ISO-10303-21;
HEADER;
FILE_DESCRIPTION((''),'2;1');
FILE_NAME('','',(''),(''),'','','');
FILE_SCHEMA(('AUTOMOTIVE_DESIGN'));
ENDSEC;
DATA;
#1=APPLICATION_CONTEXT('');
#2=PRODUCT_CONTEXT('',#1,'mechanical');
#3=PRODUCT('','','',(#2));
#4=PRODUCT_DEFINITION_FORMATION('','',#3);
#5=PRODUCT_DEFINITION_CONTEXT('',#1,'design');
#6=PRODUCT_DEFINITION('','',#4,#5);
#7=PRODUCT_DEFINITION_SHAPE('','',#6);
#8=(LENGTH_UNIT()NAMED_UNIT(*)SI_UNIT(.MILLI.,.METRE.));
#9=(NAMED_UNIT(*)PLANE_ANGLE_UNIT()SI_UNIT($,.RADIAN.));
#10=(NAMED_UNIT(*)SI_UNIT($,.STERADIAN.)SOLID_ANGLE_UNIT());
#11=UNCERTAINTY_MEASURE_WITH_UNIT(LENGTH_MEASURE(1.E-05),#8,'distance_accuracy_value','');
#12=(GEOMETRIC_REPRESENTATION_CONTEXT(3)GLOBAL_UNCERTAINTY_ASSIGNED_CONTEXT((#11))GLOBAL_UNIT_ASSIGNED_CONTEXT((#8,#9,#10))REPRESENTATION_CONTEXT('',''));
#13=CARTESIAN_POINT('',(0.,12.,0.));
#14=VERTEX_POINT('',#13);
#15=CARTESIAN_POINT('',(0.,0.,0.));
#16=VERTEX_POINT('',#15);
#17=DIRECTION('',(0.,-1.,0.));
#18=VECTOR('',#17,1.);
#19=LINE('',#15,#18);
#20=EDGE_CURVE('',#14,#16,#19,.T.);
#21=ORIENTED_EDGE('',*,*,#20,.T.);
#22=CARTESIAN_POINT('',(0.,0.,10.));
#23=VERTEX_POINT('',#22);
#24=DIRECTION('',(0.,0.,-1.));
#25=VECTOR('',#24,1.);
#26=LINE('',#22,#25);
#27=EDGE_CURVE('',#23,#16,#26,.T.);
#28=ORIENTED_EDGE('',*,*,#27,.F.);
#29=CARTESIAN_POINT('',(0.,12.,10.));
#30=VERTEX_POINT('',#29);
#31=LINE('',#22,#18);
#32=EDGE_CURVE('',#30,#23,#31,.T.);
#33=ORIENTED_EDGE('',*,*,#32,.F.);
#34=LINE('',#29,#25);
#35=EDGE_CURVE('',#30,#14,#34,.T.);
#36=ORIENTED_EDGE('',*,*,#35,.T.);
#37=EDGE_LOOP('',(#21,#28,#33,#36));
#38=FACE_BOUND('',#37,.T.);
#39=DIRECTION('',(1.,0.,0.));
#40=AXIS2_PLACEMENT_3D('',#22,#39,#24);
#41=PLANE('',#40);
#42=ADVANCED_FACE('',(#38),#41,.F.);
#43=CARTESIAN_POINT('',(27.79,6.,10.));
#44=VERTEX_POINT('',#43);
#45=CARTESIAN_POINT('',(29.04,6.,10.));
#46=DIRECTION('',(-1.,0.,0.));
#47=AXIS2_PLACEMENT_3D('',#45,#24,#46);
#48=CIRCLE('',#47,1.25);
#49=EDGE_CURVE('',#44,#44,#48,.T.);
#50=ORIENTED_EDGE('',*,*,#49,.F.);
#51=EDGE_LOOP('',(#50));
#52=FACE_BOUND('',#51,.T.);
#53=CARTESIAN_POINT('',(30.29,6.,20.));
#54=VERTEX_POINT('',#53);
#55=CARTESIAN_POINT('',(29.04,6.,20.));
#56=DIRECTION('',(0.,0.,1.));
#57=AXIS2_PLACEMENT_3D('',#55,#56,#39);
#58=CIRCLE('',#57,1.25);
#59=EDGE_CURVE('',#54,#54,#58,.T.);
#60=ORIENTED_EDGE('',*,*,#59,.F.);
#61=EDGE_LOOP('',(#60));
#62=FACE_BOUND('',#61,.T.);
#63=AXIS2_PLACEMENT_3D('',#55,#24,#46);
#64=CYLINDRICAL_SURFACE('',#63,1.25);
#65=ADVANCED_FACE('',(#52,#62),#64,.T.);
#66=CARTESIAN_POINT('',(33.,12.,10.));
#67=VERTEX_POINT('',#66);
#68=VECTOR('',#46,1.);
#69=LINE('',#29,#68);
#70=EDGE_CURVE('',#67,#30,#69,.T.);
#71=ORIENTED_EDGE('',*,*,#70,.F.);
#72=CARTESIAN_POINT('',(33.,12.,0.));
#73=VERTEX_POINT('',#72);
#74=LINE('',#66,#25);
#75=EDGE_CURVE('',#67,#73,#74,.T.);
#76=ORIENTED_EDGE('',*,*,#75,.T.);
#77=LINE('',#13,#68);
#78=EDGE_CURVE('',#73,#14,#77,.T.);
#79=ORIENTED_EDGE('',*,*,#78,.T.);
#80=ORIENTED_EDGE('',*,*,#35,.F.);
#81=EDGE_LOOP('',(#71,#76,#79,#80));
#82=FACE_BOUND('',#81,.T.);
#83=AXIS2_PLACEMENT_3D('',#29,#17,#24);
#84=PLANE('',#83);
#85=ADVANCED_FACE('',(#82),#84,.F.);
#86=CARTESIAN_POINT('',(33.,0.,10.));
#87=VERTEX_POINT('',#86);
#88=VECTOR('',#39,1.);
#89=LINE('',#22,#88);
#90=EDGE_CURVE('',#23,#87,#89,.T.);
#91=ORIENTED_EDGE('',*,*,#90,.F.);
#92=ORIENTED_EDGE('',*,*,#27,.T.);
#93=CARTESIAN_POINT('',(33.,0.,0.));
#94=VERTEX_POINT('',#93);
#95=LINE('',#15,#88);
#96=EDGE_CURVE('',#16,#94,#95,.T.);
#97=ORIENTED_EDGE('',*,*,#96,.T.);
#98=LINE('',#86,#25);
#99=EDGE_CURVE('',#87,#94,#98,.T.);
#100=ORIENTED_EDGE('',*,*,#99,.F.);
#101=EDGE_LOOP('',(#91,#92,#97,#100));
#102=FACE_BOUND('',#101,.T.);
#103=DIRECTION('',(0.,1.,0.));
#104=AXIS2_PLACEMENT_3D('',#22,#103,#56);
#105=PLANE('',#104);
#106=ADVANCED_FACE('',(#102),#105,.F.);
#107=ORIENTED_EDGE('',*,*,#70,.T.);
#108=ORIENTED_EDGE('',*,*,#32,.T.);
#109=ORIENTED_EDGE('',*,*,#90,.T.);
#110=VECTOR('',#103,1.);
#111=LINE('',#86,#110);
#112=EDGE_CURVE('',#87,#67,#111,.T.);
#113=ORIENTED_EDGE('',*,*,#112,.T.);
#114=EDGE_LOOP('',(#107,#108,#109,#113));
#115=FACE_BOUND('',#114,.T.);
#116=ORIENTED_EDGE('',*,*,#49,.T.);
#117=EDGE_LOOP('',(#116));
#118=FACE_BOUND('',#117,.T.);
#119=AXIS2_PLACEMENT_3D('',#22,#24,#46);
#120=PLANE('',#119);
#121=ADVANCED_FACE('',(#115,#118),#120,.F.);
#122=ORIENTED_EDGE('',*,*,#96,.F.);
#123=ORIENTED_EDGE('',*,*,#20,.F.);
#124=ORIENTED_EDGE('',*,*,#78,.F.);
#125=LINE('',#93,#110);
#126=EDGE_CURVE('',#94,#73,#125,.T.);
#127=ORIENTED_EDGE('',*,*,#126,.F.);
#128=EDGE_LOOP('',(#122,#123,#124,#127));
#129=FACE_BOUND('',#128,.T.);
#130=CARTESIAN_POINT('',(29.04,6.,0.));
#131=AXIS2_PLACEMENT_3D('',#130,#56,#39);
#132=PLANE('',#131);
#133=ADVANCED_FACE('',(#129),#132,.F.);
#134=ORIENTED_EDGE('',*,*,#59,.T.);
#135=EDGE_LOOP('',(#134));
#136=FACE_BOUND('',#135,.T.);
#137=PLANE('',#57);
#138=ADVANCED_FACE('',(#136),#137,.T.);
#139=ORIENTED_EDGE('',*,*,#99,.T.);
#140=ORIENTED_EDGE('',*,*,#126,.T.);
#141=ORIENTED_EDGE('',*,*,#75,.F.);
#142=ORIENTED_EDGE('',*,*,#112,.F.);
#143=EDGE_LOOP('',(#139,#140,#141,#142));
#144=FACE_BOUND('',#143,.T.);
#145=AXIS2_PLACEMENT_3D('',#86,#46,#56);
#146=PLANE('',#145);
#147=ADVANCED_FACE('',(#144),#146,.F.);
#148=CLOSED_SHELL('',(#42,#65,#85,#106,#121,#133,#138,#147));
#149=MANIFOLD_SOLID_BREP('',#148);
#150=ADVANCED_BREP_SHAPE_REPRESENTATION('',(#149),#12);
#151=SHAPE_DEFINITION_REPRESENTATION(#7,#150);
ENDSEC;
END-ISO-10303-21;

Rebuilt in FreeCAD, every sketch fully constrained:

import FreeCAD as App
import Part
import Sketcher
Q = App.Units.Quantity

doc = App.newDocument("Part")
body = doc.addObject("PartDesign::Body", "Body")

# Sketch on XY plane
sketch1 = body.newObject("Sketcher::SketchObject", "Sketch")
sketch1.AttachmentSupport = (doc.getObject("XY_Plane"), [""])
sketch1.MapMode = "FlatFace"
sketch1.addGeometry(Part.Circle(App.Vector(29, 6, 0), App.Vector(0, 0, 1), 1.2), False)
sketch1.addConstraint([
    Sketcher.Constraint("Diameter", 0, Q("2.5 mm")),
    Sketcher.Constraint("DistanceY", -1, 1, 0, 3, Q("6 mm")),
    Sketcher.Constraint("DistanceX", -1, 1, 0, 3, Q("29.04 mm")),
])
pad1 = body.newObject("PartDesign::Pad", "Pad")
pad1.Profile = sketch1
pad1.Length = 20

# Sketch on XY plane
sketch2 = body.newObject("Sketcher::SketchObject", "Sketch001")
sketch2.AttachmentSupport = (doc.getObject("XY_Plane"), [""])
sketch2.MapMode = "FlatFace"
sketch2.addGeometry([
    Part.LineSegment(App.Vector(0, 12, 0), App.Vector(0, 0, 0)),  # 0
    Part.LineSegment(App.Vector(0, 0, 0), App.Vector(33, 0, 0)),  # 1
    Part.LineSegment(App.Vector(33, 0, 0), App.Vector(33, 12, 0)),  # 2
    Part.LineSegment(App.Vector(33, 12, 0), App.Vector(0, 12, 0)),  # 3
    Part.Circle(App.Vector(29, 6, 0), App.Vector(0, 0, 1), 1.2),  # 4
], False)
sketch2.addConstraint([
    Sketcher.Constraint("Coincident", 0, 2, 1, 1),
    Sketcher.Constraint("Coincident", 1, 2, 2, 1),
    Sketcher.Constraint("Coincident", 2, 2, 3, 1),
    Sketcher.Constraint("Coincident", 3, 2, 0, 1),
    Sketcher.Constraint("Vertical", 0),
    Sketcher.Constraint("Horizontal", 1),
    Sketcher.Constraint("Vertical", 2),
    Sketcher.Constraint("Horizontal", 3),
    Sketcher.Constraint("Coincident", 0, 2, -1, 1),
    Sketcher.Constraint("Diameter", 4, Q("2.5 mm")),
    Sketcher.Constraint("DistanceX", 1, 1, 1, 2, Q("33 mm")),
    Sketcher.Constraint("DistanceY", 0, 2, 0, 1, Q("12 mm")),
    Sketcher.Constraint("DistanceY", -1, 1, 4, 3, Q("6 mm")),
    Sketcher.Constraint("DistanceX", -1, 1, 4, 3, Q("29.04 mm")),
])
pad2 = body.newObject("PartDesign::Pad", "Pad001")
pad2.Profile = sketch2
pad2.Length = 10

doc.recompute()
